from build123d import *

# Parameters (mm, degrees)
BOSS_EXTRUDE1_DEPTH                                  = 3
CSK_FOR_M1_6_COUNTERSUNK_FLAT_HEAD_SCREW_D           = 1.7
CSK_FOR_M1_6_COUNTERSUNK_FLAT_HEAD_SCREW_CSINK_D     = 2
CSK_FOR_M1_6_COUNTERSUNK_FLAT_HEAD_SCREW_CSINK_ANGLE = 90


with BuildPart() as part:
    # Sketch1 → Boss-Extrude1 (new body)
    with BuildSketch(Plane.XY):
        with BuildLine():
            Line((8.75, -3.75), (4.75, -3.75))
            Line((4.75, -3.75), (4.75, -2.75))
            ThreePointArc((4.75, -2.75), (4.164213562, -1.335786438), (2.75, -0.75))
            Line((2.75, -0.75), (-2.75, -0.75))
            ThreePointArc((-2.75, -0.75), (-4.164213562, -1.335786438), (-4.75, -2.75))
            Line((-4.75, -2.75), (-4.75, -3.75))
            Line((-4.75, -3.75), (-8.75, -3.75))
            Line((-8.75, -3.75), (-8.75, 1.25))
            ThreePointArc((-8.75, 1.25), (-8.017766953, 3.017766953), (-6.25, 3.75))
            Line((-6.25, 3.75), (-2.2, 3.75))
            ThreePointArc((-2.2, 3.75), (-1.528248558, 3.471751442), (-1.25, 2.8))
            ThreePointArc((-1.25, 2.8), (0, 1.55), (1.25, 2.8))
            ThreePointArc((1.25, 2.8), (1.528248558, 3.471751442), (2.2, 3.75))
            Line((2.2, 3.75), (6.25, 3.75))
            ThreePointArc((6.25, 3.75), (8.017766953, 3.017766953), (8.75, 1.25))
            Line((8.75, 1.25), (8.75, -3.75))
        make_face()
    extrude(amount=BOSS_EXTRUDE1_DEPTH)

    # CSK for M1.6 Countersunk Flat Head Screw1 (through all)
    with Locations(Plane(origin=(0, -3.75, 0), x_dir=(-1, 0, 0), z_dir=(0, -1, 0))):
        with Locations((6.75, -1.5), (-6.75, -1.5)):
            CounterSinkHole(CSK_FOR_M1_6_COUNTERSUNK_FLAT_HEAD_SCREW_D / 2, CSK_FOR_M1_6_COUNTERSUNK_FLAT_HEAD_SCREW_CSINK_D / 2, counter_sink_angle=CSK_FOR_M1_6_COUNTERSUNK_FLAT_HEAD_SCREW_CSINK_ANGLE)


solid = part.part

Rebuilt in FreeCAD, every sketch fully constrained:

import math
import FreeCAD as App
import Part
import Sketcher
from FreeCAD import Vector
Q = App.Units.Quantity

doc = App.newDocument("Part")
params = doc.addObject("Spreadsheet::Sheet", "Params")
for row, (alias, value) in enumerate([
    ("sketch1_radius", "2 mm"),
    ("sketch1_radius2", "2.5 mm"),
    ("sketch1_width", "4 mm"),
    ("sketch1_height", "5 mm"),
    ("sketch1_height2", "1 mm"),
    ("pad1_length", "3 mm"),
    ("sketch2_diameter", "1.7 mm"),
    ("hole_diameter", "1.7 mm"),
    ("hole_csink_diameter", "2 mm"),
], start=1):
    params.set(f"A{row}", alias)
    params.set(f"B{row}", "=" + value)
    params.setAlias(f"B{row}", alias)

body = doc.addObject("PartDesign::Body", "Body")

sketch1 = doc.addObject("Sketcher::SketchObject", "Sketch")
body.addObject(sketch1)
sketch1.AttachmentSupport = (doc.XY_Plane, [""])
sketch1.MapMode = "FlatFace"
sketch1.addGeometry([
    Part.LineSegment(Vector(4.8, -3.8, 0), Vector(8.8, -3.8, 0)),
    Part.LineSegment(Vector(8.8, -3.8, 0), Vector(8.8, 1.2, 0)),
    Part.ArcOfCircle(Part.Circle(Vector(6.2, 1.2, 0), Vector(0, 0, 1), 2.5), math.radians(0), math.radians(90)),
    Part.LineSegment(Vector(6.2, 3.8, 0), Vector(2.2, 3.8, 0)),
    Part.ArcOfCircle(Part.Circle(Vector(2.2, 2.8, 0), Vector(0, 0, 1), 0.9), math.radians(90), math.radians(180)),
    Part.ArcOfCircle(Part.Circle(Vector(0, 2.8, 0), Vector(0, 0, 1), 1.2), math.radians(180), math.radians(360)),
    Part.ArcOfCircle(Part.Circle(Vector(-2.2, 2.8, 0), Vector(0, 0, 1), 0.9), math.radians(0), math.radians(90)),
    Part.LineSegment(Vector(-2.2, 3.8, 0), Vector(-6.2, 3.8, 0)),
    Part.ArcOfCircle(Part.Circle(Vector(-6.2, 1.2, 0), Vector(0, 0, 1), 2.5), math.radians(90), math.radians(180)),
    Part.LineSegment(Vector(-8.8, 1.2, 0), Vector(-8.8, -3.8, 0)),
    Part.LineSegment(Vector(-8.8, -3.8, 0), Vector(-4.8, -3.8, 0)),
    Part.LineSegment(Vector(-4.8, -3.8, 0), Vector(-4.8, -2.8, 0)),
    Part.ArcOfCircle(Part.Circle(Vector(-2.7, -2.8, 0), Vector(0, 0, 1), 2), math.radians(90), math.radians(180)),
    Part.LineSegment(Vector(-2.8, -0.8, 0), Vector(2.8, -0.8, 0)),
    Part.ArcOfCircle(Part.Circle(Vector(2.7, -2.8, 0), Vector(0, 0, 1), 2), math.radians(0), math.radians(90)),
    Part.LineSegment(Vector(4.8, -2.8, 0), Vector(4.8, -3.8, 0)),
], False)
sketch1.addConstraint([
    Sketcher.Constraint("Coincident", 0, 2, 1, 1),
    Sketcher.Constraint("Tangent", 1, 2, 2, 1),
    Sketcher.Constraint("Tangent", 2, 2, 3, 1),
    Sketcher.Constraint("Tangent", 3, 2, 4, 1),
    Sketcher.Constraint("Tangent", 4, 2, 5, 2),
    Sketcher.Constraint("Tangent", 5, 1, 6, 1),
    Sketcher.Constraint("Tangent", 6, 2, 7, 1),
    Sketcher.Constraint("Tangent", 7, 2, 8, 1),
    Sketcher.Constraint("Tangent", 8, 2, 9, 1),
    Sketcher.Constraint("Coincident", 9, 2, 10, 1),
    Sketcher.Constraint("Coincident", 10, 2, 11, 1),
    Sketcher.Constraint("Tangent", 11, 2, 12, 2),
    Sketcher.Constraint("Tangent", 12, 1, 13, 1),
    Sketcher.Constraint("Tangent", 13, 2, 14, 2),
    Sketcher.Constraint("Tangent", 14, 1, 15, 1),
    Sketcher.Constraint("Coincident", 15, 2, 0, 1),
    Sketcher.Constraint("Horizontal", 0),
    Sketcher.Constraint("Vertical", 1),
    Sketcher.Constraint("Horizontal", 3),
    Sketcher.Constraint("Horizontal", 7),
    Sketcher.Constraint("Vertical", 9),
    Sketcher.Constraint("Horizontal", 10),
    Sketcher.Constraint("Vertical", 11),
    Sketcher.Constraint("Horizontal", 13),
    Sketcher.Constraint("Vertical", 15),
    Sketcher.Constraint("Equal", 4, 6),
    Sketcher.Constraint("Equal", 2, 8),
    Sketcher.Constraint("Equal", 12, 14),
    Sketcher.Constraint("Symmetric", 4, 3, 6, 3, -2),
    Sketcher.Constraint("Symmetric", 0, 2, 9, 2, -2),
    Sketcher.Constraint("Horizontal", 4, 3, 5, 3),
    Sketcher.Constraint("Equal", 0, 10),
    Sketcher.Constraint("Radius", 12, Q("2 mm")),
    Sketcher.Constraint("Radius", 2, Q("2.5 mm")),
    Sketcher.Constraint("DistanceX", 0, 1, 0, 2, Q("4 mm")),
    Sketcher.Constraint("DistanceY", 1, 1, 1, 2, Q("5 mm")),
    Sketcher.Constraint("DistanceY", 11, 1, 11, 2, Q("1 mm")),
    Sketcher.Constraint("Radius", 4, Q("0.95 mm")),
    Sketcher.Constraint("Radius", 5, Q("1.25 mm")),
    Sketcher.Constraint("DistanceX", 13, 1, 13, 2, Q("5.5 mm")),
    Sketcher.Constraint("DistanceY", -1, 1, 4, 3, Q("2.8 mm")),
])
sketch1.setExpression("Constraints[32]", "Params.sketch1_radius")
sketch1.setExpression("Constraints[33]", "Params.sketch1_radius2")
sketch1.setExpression("Constraints[34]", "Params.sketch1_width")
sketch1.setExpression("Constraints[35]", "Params.sketch1_height")
sketch1.setExpression("Constraints[36]", "Params.sketch1_height2")
pad1 = doc.addObject("PartDesign::Pad", "Pad")
body.addObject(pad1)
pad1.Profile = sketch1
pad1.setExpression("Length", "Params.pad1_length")

sketch2 = doc.addObject("Sketcher::SketchObject", "Sketch001")
body.addObject(sketch2)
sketch2.AttachmentSupport = (doc.XZ_Plane, [""])
sketch2.MapMode = "FlatFace"
sketch2.AttachmentOffset = App.Placement(Vector(0, 0, 3.75), App.Rotation())
sketch2.addGeometry([
    Part.Circle(Vector(-6.8, 1.5, 0), Vector(0, 0, 1), 0.8),
    Part.Circle(Vector(6.8, 1.5, 0), Vector(0, 0, 1), 0.8),
], False)
sketch2.addConstraint([
    Sketcher.Constraint("Equal", 0, 1),
    Sketcher.Constraint("Symmetric", 0, 3, 1, 3, -2),
    Sketcher.Constraint("Diameter", 0, Q("1.7 mm")),
    Sketcher.Constraint("DistanceY", -1, 1, 0, 3, Q("1.5 mm")),
    Sketcher.Constraint("DistanceX", 0, 3, 1, 3, Q("13.5 mm")),
])
sketch2.setExpression("Constraints[2]", "Params.sketch2_diameter")
doc.recompute()
hole = doc.addObject("PartDesign::Hole", "Hole")
body.addObject(hole)
hole.Profile = sketch2
hole.ThreadType = "None"
hole.setExpression("Diameter", "Params.hole_diameter")
hole.DepthType = "ThroughAll"
hole.HoleCutType = "Countersink"
hole.setExpression("HoleCutDiameter", "Params.hole_csink_diameter")
hole.HoleCutCountersinkAngle = 90

doc.recompute()
